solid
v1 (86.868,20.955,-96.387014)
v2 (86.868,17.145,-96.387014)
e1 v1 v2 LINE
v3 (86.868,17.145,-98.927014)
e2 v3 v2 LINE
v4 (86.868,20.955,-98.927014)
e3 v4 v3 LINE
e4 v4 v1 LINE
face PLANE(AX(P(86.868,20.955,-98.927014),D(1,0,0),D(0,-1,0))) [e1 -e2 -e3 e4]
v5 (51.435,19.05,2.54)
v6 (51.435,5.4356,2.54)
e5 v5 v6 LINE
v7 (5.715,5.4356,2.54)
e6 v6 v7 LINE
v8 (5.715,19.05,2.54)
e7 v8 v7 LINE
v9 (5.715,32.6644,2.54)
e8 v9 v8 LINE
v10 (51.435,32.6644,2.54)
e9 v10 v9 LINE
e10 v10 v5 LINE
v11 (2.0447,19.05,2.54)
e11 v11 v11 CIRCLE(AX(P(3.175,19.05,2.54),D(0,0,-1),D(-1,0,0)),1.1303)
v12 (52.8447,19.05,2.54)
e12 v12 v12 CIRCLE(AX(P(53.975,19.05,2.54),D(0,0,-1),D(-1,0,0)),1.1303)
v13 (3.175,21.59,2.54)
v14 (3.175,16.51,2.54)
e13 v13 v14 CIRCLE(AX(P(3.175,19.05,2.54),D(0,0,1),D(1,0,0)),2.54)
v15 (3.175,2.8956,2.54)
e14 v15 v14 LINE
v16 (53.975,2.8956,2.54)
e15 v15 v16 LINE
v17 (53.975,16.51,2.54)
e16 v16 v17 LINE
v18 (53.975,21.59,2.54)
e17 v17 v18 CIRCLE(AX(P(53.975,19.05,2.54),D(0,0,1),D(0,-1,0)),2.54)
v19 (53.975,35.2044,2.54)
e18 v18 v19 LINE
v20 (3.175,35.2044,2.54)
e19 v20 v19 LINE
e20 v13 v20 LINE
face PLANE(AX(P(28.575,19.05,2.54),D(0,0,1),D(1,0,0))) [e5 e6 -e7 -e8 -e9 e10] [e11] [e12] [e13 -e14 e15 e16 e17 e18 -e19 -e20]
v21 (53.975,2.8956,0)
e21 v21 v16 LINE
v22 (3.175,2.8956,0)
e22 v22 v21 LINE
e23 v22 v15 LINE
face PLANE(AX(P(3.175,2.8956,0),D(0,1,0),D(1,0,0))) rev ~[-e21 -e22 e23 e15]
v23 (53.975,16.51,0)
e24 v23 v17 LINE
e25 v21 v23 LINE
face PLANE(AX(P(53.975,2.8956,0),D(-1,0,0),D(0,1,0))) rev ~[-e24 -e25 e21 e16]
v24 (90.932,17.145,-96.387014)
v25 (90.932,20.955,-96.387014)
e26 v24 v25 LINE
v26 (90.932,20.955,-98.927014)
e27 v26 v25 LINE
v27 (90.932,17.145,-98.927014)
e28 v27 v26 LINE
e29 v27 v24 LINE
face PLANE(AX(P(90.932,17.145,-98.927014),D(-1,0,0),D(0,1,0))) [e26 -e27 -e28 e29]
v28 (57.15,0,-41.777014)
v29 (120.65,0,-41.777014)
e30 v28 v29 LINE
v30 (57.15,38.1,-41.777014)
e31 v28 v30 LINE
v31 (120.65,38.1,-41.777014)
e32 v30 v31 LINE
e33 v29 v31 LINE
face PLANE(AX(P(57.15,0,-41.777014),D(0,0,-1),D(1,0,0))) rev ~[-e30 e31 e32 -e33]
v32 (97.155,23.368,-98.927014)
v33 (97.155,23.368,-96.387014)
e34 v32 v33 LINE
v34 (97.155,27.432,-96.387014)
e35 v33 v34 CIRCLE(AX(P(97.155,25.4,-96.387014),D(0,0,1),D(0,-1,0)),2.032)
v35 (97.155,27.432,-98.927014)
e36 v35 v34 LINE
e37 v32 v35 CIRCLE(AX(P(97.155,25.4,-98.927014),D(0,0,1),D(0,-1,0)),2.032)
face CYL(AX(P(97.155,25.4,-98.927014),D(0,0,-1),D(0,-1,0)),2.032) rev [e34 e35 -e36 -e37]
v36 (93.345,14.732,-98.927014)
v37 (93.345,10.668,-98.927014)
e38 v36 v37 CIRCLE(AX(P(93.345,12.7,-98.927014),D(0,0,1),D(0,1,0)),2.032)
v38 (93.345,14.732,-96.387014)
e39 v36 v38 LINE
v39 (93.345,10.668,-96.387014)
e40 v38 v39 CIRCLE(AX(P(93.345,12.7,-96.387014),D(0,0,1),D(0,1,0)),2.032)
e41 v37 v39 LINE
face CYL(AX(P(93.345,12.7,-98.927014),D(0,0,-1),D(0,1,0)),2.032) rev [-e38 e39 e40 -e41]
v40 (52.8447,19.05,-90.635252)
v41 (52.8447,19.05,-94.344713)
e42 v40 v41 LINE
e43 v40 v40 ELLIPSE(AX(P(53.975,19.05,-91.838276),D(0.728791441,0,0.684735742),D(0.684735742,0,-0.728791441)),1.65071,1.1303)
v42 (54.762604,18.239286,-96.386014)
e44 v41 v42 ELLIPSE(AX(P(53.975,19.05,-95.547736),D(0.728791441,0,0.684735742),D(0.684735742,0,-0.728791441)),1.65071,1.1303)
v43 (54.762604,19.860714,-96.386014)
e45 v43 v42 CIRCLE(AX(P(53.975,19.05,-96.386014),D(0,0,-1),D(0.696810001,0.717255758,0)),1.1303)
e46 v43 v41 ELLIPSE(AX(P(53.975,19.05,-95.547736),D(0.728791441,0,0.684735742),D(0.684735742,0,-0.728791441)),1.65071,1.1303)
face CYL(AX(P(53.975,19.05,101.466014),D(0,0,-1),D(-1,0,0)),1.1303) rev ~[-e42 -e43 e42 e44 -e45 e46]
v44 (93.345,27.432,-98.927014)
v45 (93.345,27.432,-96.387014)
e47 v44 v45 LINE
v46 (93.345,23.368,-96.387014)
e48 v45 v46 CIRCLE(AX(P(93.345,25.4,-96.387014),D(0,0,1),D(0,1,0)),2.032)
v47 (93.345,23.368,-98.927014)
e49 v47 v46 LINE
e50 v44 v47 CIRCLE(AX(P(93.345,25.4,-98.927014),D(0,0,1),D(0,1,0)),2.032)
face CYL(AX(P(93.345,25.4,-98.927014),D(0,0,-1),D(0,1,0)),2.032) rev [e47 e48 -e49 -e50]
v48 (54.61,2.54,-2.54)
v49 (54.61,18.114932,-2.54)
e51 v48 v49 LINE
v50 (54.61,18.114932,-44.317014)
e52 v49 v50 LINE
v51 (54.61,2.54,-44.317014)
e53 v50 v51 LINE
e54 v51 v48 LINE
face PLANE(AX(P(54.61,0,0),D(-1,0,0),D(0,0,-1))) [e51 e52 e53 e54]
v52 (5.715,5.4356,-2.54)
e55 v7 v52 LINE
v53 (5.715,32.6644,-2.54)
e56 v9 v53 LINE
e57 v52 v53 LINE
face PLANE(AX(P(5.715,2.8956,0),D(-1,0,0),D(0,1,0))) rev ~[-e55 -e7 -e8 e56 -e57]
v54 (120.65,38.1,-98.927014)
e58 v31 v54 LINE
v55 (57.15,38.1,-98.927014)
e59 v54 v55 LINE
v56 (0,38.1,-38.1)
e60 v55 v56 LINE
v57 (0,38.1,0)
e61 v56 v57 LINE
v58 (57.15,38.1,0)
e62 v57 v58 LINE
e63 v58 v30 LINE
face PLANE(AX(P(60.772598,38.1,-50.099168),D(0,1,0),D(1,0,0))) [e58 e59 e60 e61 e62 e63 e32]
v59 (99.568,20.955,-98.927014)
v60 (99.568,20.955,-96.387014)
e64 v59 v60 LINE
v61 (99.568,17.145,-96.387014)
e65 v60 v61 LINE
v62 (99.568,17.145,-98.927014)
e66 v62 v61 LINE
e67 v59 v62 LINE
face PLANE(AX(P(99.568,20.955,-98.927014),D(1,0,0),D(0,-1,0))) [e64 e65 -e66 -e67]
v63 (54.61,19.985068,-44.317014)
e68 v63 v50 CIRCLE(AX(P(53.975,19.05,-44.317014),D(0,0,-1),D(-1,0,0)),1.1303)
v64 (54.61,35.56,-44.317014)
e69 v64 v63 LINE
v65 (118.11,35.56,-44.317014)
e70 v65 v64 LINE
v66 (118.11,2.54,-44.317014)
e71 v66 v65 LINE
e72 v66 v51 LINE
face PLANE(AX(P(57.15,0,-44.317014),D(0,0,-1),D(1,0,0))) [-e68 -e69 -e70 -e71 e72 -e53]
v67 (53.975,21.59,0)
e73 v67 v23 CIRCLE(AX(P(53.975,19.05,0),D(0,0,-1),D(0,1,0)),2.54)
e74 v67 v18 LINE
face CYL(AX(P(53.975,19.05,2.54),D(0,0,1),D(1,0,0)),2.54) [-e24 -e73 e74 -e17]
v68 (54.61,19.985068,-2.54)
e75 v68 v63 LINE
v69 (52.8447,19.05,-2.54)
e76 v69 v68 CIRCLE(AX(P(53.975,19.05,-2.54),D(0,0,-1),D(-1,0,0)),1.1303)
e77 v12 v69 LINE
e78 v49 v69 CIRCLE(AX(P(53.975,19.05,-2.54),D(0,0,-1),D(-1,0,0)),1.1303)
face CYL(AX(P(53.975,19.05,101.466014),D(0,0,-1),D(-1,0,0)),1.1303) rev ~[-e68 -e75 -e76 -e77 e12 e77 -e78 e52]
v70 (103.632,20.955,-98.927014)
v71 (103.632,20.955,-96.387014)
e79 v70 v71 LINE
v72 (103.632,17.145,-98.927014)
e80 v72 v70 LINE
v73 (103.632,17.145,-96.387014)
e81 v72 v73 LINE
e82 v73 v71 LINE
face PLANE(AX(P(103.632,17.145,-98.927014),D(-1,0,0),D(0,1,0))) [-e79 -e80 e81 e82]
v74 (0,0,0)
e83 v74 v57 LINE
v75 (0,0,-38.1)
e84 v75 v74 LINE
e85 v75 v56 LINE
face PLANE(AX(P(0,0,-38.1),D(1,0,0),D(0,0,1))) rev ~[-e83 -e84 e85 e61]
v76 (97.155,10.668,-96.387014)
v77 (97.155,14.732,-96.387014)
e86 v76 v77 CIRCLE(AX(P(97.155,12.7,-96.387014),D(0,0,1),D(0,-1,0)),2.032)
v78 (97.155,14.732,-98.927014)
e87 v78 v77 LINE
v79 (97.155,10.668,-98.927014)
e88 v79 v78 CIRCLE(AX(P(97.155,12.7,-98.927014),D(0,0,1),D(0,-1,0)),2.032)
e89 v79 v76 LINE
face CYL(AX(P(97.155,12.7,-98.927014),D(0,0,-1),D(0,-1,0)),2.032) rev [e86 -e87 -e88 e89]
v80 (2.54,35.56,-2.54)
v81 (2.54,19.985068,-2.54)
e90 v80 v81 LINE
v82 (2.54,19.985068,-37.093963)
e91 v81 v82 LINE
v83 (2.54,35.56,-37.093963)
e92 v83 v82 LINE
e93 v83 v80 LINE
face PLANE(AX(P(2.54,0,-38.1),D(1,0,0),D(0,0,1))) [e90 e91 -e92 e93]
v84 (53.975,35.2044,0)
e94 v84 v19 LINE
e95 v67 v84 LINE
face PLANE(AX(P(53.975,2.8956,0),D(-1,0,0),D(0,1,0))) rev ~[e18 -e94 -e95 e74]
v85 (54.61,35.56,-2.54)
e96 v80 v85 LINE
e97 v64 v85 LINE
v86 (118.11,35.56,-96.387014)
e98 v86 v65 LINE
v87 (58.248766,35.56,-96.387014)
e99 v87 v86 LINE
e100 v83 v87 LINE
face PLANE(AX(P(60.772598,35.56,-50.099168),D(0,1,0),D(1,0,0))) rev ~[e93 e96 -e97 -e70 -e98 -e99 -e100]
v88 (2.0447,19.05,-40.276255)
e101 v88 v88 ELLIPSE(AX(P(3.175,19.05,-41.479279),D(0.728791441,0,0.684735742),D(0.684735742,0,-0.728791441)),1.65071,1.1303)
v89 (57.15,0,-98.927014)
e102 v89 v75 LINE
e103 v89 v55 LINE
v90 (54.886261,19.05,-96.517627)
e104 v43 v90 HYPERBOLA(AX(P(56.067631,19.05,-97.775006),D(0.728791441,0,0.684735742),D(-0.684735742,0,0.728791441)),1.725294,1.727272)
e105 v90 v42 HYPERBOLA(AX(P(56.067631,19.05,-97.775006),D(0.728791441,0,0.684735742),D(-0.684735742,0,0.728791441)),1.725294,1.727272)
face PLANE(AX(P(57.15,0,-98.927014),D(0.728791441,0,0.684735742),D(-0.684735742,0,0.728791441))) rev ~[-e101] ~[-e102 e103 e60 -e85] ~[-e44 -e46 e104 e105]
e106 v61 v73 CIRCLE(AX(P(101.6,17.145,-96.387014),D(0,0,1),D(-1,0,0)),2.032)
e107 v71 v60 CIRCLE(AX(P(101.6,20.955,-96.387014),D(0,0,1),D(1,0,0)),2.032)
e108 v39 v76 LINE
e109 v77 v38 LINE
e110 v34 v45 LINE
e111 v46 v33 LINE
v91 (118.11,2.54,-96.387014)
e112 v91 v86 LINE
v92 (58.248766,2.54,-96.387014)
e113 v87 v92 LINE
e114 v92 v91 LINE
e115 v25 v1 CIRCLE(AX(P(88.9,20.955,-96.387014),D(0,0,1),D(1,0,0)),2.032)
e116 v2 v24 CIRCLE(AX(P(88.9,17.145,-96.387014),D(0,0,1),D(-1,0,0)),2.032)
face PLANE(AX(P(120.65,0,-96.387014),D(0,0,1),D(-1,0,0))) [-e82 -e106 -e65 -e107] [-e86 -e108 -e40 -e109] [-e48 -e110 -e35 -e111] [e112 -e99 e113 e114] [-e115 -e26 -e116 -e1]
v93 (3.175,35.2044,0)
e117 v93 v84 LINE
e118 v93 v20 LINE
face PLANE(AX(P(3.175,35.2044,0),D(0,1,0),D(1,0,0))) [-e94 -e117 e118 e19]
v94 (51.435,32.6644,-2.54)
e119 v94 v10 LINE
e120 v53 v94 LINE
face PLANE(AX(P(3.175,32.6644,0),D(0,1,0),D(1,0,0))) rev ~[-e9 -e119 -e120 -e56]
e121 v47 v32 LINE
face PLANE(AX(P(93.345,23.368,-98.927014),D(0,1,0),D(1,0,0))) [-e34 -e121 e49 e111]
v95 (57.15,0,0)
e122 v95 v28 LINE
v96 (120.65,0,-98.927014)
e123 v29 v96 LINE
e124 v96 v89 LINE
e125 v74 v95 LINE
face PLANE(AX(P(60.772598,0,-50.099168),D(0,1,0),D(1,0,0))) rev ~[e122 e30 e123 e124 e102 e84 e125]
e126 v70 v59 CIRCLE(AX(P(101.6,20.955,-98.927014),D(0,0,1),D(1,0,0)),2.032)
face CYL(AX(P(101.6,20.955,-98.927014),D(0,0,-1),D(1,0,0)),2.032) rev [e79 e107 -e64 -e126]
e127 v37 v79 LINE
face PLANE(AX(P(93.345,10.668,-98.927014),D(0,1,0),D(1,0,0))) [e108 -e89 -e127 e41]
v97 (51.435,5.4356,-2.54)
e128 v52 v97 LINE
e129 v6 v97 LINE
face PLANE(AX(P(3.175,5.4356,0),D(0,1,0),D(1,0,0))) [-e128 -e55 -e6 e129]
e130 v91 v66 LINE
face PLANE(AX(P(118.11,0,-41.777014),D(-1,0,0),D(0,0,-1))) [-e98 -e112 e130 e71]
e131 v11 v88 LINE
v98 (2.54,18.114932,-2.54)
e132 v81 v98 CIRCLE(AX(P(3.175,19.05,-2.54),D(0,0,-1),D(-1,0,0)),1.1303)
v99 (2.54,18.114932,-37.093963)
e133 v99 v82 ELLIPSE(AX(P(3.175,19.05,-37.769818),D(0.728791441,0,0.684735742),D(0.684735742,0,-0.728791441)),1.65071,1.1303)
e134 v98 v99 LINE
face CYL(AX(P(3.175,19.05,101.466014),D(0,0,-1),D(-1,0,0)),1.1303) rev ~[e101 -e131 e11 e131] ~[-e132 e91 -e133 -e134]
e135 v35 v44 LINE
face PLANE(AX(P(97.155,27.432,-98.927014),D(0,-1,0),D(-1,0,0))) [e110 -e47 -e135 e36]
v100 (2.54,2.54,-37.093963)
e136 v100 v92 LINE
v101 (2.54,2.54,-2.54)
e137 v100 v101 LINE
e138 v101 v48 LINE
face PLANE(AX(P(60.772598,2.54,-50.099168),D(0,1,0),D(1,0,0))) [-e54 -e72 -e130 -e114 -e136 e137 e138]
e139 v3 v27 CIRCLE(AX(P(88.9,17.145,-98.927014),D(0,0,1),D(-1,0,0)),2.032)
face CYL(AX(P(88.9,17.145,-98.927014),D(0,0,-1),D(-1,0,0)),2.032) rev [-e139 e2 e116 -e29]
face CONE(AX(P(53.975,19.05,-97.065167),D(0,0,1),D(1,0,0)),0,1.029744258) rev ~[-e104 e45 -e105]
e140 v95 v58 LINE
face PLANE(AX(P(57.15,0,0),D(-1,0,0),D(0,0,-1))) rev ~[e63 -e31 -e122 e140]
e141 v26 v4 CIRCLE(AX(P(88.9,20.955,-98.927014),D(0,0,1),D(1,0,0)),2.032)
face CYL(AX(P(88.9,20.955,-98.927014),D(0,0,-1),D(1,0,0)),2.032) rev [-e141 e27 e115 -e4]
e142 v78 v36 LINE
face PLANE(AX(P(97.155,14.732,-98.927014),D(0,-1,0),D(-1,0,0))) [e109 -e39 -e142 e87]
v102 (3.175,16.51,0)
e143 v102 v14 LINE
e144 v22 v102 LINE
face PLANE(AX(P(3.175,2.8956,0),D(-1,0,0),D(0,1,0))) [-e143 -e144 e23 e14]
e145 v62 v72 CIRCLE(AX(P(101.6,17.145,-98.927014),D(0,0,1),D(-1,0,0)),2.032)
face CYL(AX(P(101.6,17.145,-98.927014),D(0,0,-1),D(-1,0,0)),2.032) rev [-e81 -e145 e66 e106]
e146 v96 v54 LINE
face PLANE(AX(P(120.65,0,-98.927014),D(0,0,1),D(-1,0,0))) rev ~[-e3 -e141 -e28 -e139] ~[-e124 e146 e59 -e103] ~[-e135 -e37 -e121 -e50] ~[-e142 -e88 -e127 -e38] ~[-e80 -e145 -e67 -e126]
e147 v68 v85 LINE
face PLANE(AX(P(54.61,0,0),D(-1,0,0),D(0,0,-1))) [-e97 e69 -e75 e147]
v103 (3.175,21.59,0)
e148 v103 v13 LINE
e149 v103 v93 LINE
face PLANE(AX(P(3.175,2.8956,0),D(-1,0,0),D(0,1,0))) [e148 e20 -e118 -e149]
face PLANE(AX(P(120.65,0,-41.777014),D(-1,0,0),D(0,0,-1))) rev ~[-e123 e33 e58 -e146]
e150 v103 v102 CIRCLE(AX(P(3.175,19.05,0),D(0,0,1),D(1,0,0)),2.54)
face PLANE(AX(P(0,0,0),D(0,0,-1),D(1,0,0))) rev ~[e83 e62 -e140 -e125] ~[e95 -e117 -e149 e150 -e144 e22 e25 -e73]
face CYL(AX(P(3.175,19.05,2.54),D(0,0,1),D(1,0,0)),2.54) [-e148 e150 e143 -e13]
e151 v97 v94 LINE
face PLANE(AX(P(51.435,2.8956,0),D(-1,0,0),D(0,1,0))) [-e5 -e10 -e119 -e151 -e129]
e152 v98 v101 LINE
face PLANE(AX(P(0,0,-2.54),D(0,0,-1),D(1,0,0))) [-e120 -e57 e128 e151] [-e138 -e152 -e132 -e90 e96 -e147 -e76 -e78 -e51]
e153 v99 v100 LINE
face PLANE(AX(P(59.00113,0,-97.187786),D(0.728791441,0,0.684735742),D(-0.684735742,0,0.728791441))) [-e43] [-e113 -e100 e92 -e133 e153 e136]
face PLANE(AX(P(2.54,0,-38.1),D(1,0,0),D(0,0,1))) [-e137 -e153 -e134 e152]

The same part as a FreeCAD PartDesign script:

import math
import FreeCAD as App
import Part
import Sketcher
Q = App.Units.Quantity


def faces_at(feature, points):
    """Names of the faces that lie closest to the given points."""
    faces = feature.Shape.Faces
    near = lambda p: min(range(len(faces)), key=lambda i: faces[i].distToShape(Part.Vertex(*p))[0])
    return sorted({f"Face{near(p) + 1}" for p in points})


def add_polygon(sketch, points):
    """Adds a closed chain of lines whose ends are joined by coincident constraints."""
    first, n = sketch.GeometryCount, len(points)
    for a, b in zip(points, points[1:] + points[:1]):
        sketch.addGeometry(Part.LineSegment(App.Vector(*a, 0), App.Vector(*b, 0)), False)
    for i in range(n):
        sketch.addConstraint(Sketcher.Constraint("Coincident", first + i, 2, first + (i + 1) % n, 1))

doc = App.newDocument("Part")
body = doc.addObject("PartDesign::Body", "Body")

sketch1 = body.newObject("Sketcher::SketchObject", "Sketch")
sketch1.AttachmentSupport = (doc.getObject("XZ_Plane"), [""])
sketch1.MapMode = "FlatFace"
add_polygon(sketch1, [(0, 0), (57.15, 0), (57.15, -41.777014), (120.65, -41.777014), (120.65, -98.927014), (57.15, -98.927014), (0, -38.1)])
sketch1.addConstraint(Sketcher.Constraint("Horizontal", 0))
sketch1.addConstraint(Sketcher.Constraint("Vertical", 1))
sketch1.addConstraint(Sketcher.Constraint("Horizontal", 2))
sketch1.addConstraint(Sketcher.Constraint("Vertical", 3))
sketch1.addConstraint(Sketcher.Constraint("Horizontal", 4))
sketch1.addConstraint(Sketcher.Constraint("Vertical", 6))
sketch1.addConstraint(Sketcher.Constraint("Coincident", 6, 2, -1, 1))
sketch1.addConstraint(Sketcher.Constraint("Vertical", 1, 2, 4, 2))
sketch1.addConstraint(Sketcher.Constraint("Equal", 0, 3))
sketch1.addConstraint(Sketcher.Constraint("DistanceX", 2, 1, 2, 2, Q("2.5 in")))
sketch1.addConstraint(Sketcher.Constraint("DistanceY", 6, 1, 6, 2, Q("1.5 in")))
sketch1.addConstraint(Sketcher.Constraint("DistanceX", 0, 1, 0, 2, Q("2.25 in")))
sketch1.addConstraint(Sketcher.Constraint("DistanceY", 1, 2, 1, 1, Q("41.777014 mm")))
pad1 = body.newObject("PartDesign::Pad", "Pad")
pad1.Profile = sketch1
pad1.Length = Q("1.5 in")
pad1.Reversed = True

sketch2 = body.newObject("Sketcher::SketchObject", "Sketch001")
sketch2.AttachmentSupport = (doc.getObject("XY_Plane"), [""])
sketch2.MapMode = "FlatFace"
add_polygon(sketch2, [(3.175, 35.2044), (3.175, 2.8956), (53.975, 2.8956), (53.975, 35.2044)])
sketch2.addConstraint(Sketcher.Constraint("Vertical", 0))
sketch2.addConstraint(Sketcher.Constraint("Horizontal", 1))
sketch2.addConstraint(Sketcher.Constraint("Vertical", 2))
sketch2.addConstraint(Sketcher.Constraint("Horizontal", 3))
sketch2.addConstraint(Sketcher.Constraint("DistanceX", 1, 1, 1, 2, Q("2 in")))
sketch2.addConstraint(Sketcher.Constraint("DistanceY", 0, 2, 0, 1, Q("1.272 in")))
sketch2.addConstraint(Sketcher.Constraint("DistanceX", -1, 1, 0, 2, Q("0.125 in")))
sketch2.addConstraint(Sketcher.Constraint("DistanceY", -1, 1, 0, 2, Q("0.114 in")))
pad2 = body.newObject("PartDesign::Pad", "Pad001")
pad2.Profile = sketch2
pad2.Length = Q("0.1 in")
doc.recompute()

thickness = body.newObject("PartDesign::Thickness", "Thickness")
thickness.Base = (pad2, faces_at(pad2, [(28.575, 19.05, 2.54)]))
thickness.Value = Q("0.1 in")
thickness.Reversed = True
thickness.Join = "Intersection"

sketch3 = body.newObject("Sketcher::SketchObject", "Sketch002")
sketch3.AttachmentSupport = (doc.getObject("XY_Plane"), [""])
sketch3.MapMode = "FlatFace"
sketch3.AttachmentOffset = App.Placement(App.Vector(0, 0, 0.1 * 25.4), App.Rotation())
sketch3.addGeometry(Part.Circle(App.Vector(3.175, 19.05, 0), App.Vector(0, 0, 1), 2.54), False)
sketch3.addGeometry(Part.Circle(App.Vector(53.975, 19.05, 0), App.Vector(0, 0, 1), 2.54), False)
sketch3.addConstraint(Sketcher.Constraint("Equal", 0, 1))
sketch3.addConstraint(Sketcher.Constraint("Horizontal", 0, 3, 1, 3))
sketch3.addConstraint(Sketcher.Constraint("Diameter", 0, Q("0.2 in")))
sketch3.addConstraint(Sketcher.Constraint("DistanceX", 0, 3, 1, 3, Q("2 in")))
sketch3.addConstraint(Sketcher.Constraint("DistanceY", -1, 1, 0, 3, Q("0.75 in")))
sketch3.addConstraint(Sketcher.Constraint("DistanceX", -1, 1, 0, 3, Q("0.125 in")))
pad3 = body.newObject("PartDesign::Pad", "Pad002")
pad3.Profile = sketch3
pad3.Length = Q("0.1 in")
pad3.Reversed = True

sketch4 = body.newObject("Sketcher::SketchObject", "Sketch003")
sketch4.AttachmentSupport = (doc.getObject("XY_Plane"), [""])
sketch4.MapMode = "FlatFace"
sketch4.AttachmentOffset = App.Placement(App.Vector(0, 0, 0.1 * 25.4), App.Rotation())
sketch4.addGeometry(Part.Circle(App.Vector(53.975, 19.05, 0), App.Vector(0, 0, 1), 1.1303), False)
sketch4.addGeometry(Part.Circle(App.Vector(3.175, 19.05, 0), App.Vector(0, 0, 1), 1.1303), False)
sketch4.addConstraint(Sketcher.Constraint("Equal", 0, 1))
sketch4.addConstraint(Sketcher.Constraint("Horizontal", 0, 3, 1, 3))
sketch4.addConstraint(Sketcher.Constraint("Diameter", 0, Q("0.089 in")))
sketch4.addConstraint(Sketcher.Constraint("DistanceX", 1, 3, 0, 3, Q("2 in")))
sketch4.addConstraint(Sketcher.Constraint("DistanceY", -1, 1, 0, 3, Q("0.75 in")))
sketch4.addConstraint(Sketcher.Constraint("DistanceX", -1, 1, 0, 3, Q("2.125 in")))
doc.recompute()
hole = body.newObject("PartDesign::Hole", "Hole")
hole.Profile = sketch4
hole.ThreadType = "None"
hole.Diameter = Q("0.089 in")
hole.DepthType = "Dimension"
hole.Depth = 98.926014
hole.DrillPoint = "Angled"
hole.DrillPointAngle = 118

sketch5 = body.newObject("Sketcher::SketchObject", "Sketch004")
sketch5.AttachmentSupport = (doc.getObject("XY_Plane"), [""])
sketch5.MapMode = "FlatFace"
sketch5.AttachmentOffset = App.Placement(App.Vector(0, 0, -98.927014), App.Rotation())
sketch5.addGeometry(Part.LineSegment(App.Vector(97.155, 10.668, 0), App.Vector(93.345, 10.668, 0)), False)
sketch5.addGeometry(Part.ArcOfCircle(Part.Circle(App.Vector(93.345, 12.7, 0), App.Vector(0, 0, 1), 2.032), math.radians(90), math.radians(270)), False)
sketch5.addGeometry(Part.LineSegment(App.Vector(93.345, 14.732, 0), App.Vector(97.155, 14.732, 0)), False)
sketch5.addGeometry(Part.ArcOfCircle(Part.Circle(App.Vector(97.155, 12.7, 0), App.Vector(0, 0, 1), 2.032), math.radians(-90), math.radians(90)), False)
sketch5.addConstraint(Sketcher.Constraint("Tangent", 0, 2, 1, 2))
sketch5.addConstraint(Sketcher.Constraint("Tangent", 1, 1, 2, 1))
sketch5.addConstraint(Sketcher.Constraint("Tangent", 2, 2, 3, 2))
sketch5.addConstraint(Sketcher.Constraint("Tangent", 3, 1, 0, 1))
sketch5.addConstraint(Sketcher.Constraint("Horizontal", 0))
sketch5.addConstraint(Sketcher.Constraint("Horizontal", 2))
sketch5.addConstraint(Sketcher.Constraint("Radius", 1, Q("0.08 in")))
sketch5.addConstraint(Sketcher.Constraint("DistanceX", 0, 2, 0, 1, Q("0.15 in")))
sketch5.addConstraint(Sketcher.Constraint("DistanceY", -1, 1, 1, 3, Q("0.5 in")))
sketch5.addConstraint(Sketcher.Constraint("DistanceX", -1, 1, 1, 3, Q("3.675 in")))
pocket1 = body.newObject("PartDesign::Pocket", "Pocket")
pocket1.Profile = sketch5
pocket1.Length = Q("0.1 in")
pocket1.Reversed = True
doc.recompute()

datumline = body.newObject("PartDesign::Line", "DatumLine")
datumline.Placement = App.Placement(App.Vector(95.25, 19.05, 0), App.Rotation(App.Vector(0, 0, 1), App.Vector(0, 0, 1)))
polarpattern = body.newObject("PartDesign::PolarPattern", "PolarPattern")
polarpattern.Originals = [pocket1]
polarpattern.Axis = (datumline, [""])
polarpattern.Angle = 360
polarpattern.Occurrences = 4
body.Tip = polarpattern

doc.recompute()
